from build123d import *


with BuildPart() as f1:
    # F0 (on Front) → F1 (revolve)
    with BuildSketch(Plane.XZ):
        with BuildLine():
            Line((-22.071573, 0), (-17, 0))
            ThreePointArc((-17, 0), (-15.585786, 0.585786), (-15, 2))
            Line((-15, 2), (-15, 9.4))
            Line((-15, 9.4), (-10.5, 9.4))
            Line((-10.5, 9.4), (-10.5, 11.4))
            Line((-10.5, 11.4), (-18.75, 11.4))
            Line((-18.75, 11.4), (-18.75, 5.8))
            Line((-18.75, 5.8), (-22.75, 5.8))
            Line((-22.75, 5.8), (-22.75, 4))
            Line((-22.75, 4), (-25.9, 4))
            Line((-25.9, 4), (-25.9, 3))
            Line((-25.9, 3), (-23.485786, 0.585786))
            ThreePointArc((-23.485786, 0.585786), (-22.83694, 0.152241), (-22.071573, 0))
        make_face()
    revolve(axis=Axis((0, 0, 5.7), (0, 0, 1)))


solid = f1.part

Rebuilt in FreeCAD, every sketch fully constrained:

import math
import FreeCAD as App
import Part
import Sketcher
from FreeCAD import Vector
Q = App.Units.Quantity

doc = App.newDocument("Part")
body = doc.addObject("PartDesign::Body", "Body")

sketch1 = body.newObject("Sketcher::SketchObject", "Sketch")
sketch1.AttachmentSupport = (doc.getObject("XZ_Plane"), [""])
sketch1.MapMode = "FlatFace"
sketch1.addGeometry(Part.LineSegment(Vector(-22.1, 0, 0), Vector(-17, 0, 0)), False)
sketch1.addGeometry(Part.ArcOfCircle(Part.Circle(Vector(-17, 2, 0), Vector(0, 0, 1), 2), math.radians(-90), math.radians(0)), False)
sketch1.addGeometry(Part.LineSegment(Vector(-15, 2, 0), Vector(-15, 9.4, 0)), False)
sketch1.addGeometry(Part.LineSegment(Vector(-15, 9.4, 0), Vector(-10.5, 9.4, 0)), False)
sketch1.addGeometry(Part.LineSegment(Vector(-10.5, 9.4, 0), Vector(-10.5, 11.4, 0)), False)
sketch1.addGeometry(Part.LineSegment(Vector(-10.5, 11.4, 0), Vector(-18.8, 11.4, 0)), False)
sketch1.addGeometry(Part.LineSegment(Vector(-18.8, 11.4, 0), Vector(-18.8, 5.8, 0)), False)
sketch1.addGeometry(Part.LineSegment(Vector(-18.8, 5.8, 0), Vector(-22.8, 5.8, 0)), False)
sketch1.addGeometry(Part.LineSegment(Vector(-22.8, 5.8, 0), Vector(-22.8, 4, 0)), False)
sketch1.addGeometry(Part.LineSegment(Vector(-22.8, 4, 0), Vector(-25.9, 4, 0)), False)
sketch1.addGeometry(Part.LineSegment(Vector(-25.9, 4, 0), Vector(-25.9, 3, 0)), False)
sketch1.addGeometry(Part.LineSegment(Vector(-25.9, 3, 0), Vector(-23.5, 0.6, 0)), False)
sketch1.addGeometry(Part.ArcOfCircle(Part.Circle(Vector(-22.1, 2, 0), Vector(0, 0, 1), 2), math.radians(-135), math.radians(-90)), False)
sketch1.addConstraint(Sketcher.Constraint("Tangent", 0, 2, 1, 1))
sketch1.addConstraint(Sketcher.Constraint("Tangent", 1, 2, 2, 1))
sketch1.addConstraint(Sketcher.Constraint("Coincident", 2, 2, 3, 1))
sketch1.addConstraint(Sketcher.Constraint("Coincident", 3, 2, 4, 1))
sketch1.addConstraint(Sketcher.Constraint("Coincident", 4, 2, 5, 1))
sketch1.addConstraint(Sketcher.Constraint("Coincident", 5, 2, 6, 1))
sketch1.addConstraint(Sketcher.Constraint("Coincident", 6, 2, 7, 1))
sketch1.addConstraint(Sketcher.Constraint("Coincident", 7, 2, 8, 1))
sketch1.addConstraint(Sketcher.Constraint("Coincident", 8, 2, 9, 1))
sketch1.addConstraint(Sketcher.Constraint("Coincident", 9, 2, 10, 1))
sketch1.addConstraint(Sketcher.Constraint("Coincident", 10, 2, 11, 1))
sketch1.addConstraint(Sketcher.Constraint("Tangent", 11, 2, 12, 1))
sketch1.addConstraint(Sketcher.Constraint("Tangent", 12, 2, 0, 1))
sketch1.addConstraint(Sketcher.Constraint("Horizontal", 0))
sketch1.addConstraint(Sketcher.Constraint("Vertical", 2))
sketch1.addConstraint(Sketcher.Constraint("Horizontal", 3))
sketch1.addConstraint(Sketcher.Constraint("Vertical", 4))
sketch1.addConstraint(Sketcher.Constraint("Horizontal", 5))
sketch1.addConstraint(Sketcher.Constraint("Vertical", 6))
sketch1.addConstraint(Sketcher.Constraint("Horizontal", 7))
sketch1.addConstraint(Sketcher.Constraint("Vertical", 8))
sketch1.addConstraint(Sketcher.Constraint("Horizontal", 9))
sketch1.addConstraint(Sketcher.Constraint("Vertical", 10))
sketch1.addConstraint(Sketcher.Constraint("Equal", 1, 12))
sketch1.addConstraint(Sketcher.Constraint("PointOnObject", 0, 2, -1))
sketch1.addConstraint(Sketcher.Constraint("Radius", 1, 1.999999))
sketch1.addConstraint(Sketcher.Constraint("DistanceX", 7, 2, 7, 1, 4.0))
sketch1.addConstraint(Sketcher.Constraint("DistanceY", 4, 1, 4, 2, 2.0))
sketch1.addConstraint(Sketcher.Constraint("DistanceY", 10, 2, 10, 1, 1.0))
sketch1.addConstraint(Sketcher.Constraint("Angle", 11, Q("-45 deg")))
sketch1.addConstraint(Sketcher.Constraint("DistanceX", 3, 1, 3, 2, 4.5))
sketch1.addConstraint(Sketcher.Constraint("DistanceY", 2, 1, 2, 2, 7.4))
sketch1.addConstraint(Sketcher.Constraint("DistanceY", 6, 2, 6, 1, 5.6))
sketch1.addConstraint(Sketcher.Constraint("DistanceY", 8, 2, 8, 1, 1.8))
sketch1.addConstraint(Sketcher.Constraint("DistanceX", 1, 3, -1, 1, 16.999999))
sketch1.addConstraint(Sketcher.Constraint("DistanceX", 5, 2, 5, 1, 8.25))
sketch1.addConstraint(Sketcher.Constraint("DistanceX", 9, 2, 9, 1, 3.15))
revolution = body.newObject("PartDesign::Revolution", "Revolution")
revolution.Profile = sketch1
revolution.ReferenceAxis = (sketch1, ["V_Axis"])
revolution.Angle = 360

doc.recompute()
